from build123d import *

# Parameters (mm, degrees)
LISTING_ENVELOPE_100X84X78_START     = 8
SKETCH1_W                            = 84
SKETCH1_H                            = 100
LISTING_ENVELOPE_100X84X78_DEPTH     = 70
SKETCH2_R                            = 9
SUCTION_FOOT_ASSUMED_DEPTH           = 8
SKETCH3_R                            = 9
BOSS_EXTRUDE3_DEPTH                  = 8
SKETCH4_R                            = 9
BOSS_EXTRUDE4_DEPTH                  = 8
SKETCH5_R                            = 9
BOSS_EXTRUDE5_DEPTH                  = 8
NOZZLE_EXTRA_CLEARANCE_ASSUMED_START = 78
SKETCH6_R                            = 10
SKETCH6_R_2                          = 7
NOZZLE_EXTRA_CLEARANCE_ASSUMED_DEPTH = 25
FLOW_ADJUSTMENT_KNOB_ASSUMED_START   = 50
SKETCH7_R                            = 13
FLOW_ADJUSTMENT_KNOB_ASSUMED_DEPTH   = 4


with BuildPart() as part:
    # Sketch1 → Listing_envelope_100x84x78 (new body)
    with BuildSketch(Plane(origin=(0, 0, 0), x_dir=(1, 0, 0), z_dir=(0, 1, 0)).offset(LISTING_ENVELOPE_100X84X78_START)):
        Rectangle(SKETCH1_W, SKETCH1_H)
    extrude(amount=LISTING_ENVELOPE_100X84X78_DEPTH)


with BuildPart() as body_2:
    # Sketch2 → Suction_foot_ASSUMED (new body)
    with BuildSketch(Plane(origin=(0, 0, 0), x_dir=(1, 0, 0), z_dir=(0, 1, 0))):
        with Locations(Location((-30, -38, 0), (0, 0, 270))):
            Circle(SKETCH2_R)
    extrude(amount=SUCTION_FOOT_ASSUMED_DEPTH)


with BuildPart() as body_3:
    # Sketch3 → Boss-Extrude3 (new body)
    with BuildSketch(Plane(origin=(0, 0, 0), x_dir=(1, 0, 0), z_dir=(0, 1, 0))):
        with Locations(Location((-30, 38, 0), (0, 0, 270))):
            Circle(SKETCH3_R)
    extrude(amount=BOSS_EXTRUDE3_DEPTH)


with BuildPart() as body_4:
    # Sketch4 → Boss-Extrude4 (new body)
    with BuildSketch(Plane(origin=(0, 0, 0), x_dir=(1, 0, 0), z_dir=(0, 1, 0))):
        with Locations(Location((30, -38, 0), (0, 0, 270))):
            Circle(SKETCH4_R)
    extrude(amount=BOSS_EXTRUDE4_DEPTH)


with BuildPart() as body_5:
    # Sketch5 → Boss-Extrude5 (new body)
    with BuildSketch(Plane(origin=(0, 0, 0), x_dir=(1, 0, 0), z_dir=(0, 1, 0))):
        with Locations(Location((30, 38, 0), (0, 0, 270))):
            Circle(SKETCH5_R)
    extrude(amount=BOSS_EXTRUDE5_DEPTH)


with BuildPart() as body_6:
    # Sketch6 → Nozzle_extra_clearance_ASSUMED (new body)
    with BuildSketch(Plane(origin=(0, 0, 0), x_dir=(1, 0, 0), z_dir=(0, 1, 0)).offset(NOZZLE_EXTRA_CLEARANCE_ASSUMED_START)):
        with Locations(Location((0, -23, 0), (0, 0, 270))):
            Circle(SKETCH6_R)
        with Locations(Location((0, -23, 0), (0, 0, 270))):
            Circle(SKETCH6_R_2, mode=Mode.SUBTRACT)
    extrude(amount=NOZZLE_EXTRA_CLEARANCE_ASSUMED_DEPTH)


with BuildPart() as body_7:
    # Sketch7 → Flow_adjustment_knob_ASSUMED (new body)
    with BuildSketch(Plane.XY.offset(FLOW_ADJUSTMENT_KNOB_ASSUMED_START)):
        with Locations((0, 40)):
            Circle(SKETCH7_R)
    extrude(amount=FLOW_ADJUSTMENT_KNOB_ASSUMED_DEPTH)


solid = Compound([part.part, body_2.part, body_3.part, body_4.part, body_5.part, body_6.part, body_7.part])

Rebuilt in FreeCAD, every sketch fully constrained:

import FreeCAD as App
import Part
import Sketcher

doc = App.newDocument("Part")
body = doc.addObject("PartDesign::Body", "Body")

sketch1 = doc.addObject("Sketcher::SketchObject", "Sketch")
body.addObject(sketch1)
sketch1.AttachmentSupport = (doc.XZ_Plane, [""])
sketch1.MapMode = "FlatFace"
sketch1.AttachmentOffset = App.Placement(App.Vector(0, 0, -8), App.Rotation())
sketch1.addGeometry([
    Part.LineSegment(App.Vector(-42, -50, 0), App.Vector(-42, 50, 0)),
    Part.LineSegment(App.Vector(-42, 50, 0), App.Vector(42, 50, 0)),
    Part.LineSegment(App.Vector(42, 50, 0), App.Vector(42, -50, 0)),
    Part.LineSegment(App.Vector(42, -50, 0), App.Vector(-42, -50, 0)),
], False)
sketch1.addConstraint([
    Sketcher.Constraint("Coincident", 0, 2, 1, 1),
    Sketcher.Constraint("Coincident", 1, 2, 2, 1),
    Sketcher.Constraint("Coincident", 2, 2, 3, 1),
    Sketcher.Constraint("Coincident", 3, 2, 0, 1),
    Sketcher.Constraint("Vertical", 0),
    Sketcher.Constraint("Horizontal", 1),
    Sketcher.Constraint("Vertical", 2),
    Sketcher.Constraint("Horizontal", 3),
    Sketcher.Constraint("Symmetric", 0, 2, 2, 2, -1, 1),
    Sketcher.Constraint("DistanceX", 1, 1, 1, 2, 84.0),
    Sketcher.Constraint("DistanceY", 0, 1, 0, 2, 100.0),
])
pad1 = doc.addObject("PartDesign::Pad", "Pad")
body.addObject(pad1)
pad1.Profile = sketch1
pad1.Length = 70
pad1.Reversed = True
body2 = doc.addObject("PartDesign::Body", "Body001")

sketch2 = doc.addObject("Sketcher::SketchObject", "Sketch001")
body2.addObject(sketch2)
sketch2.AttachmentSupport = (doc.getObject("XZ_Plane001"), [""])
sketch2.MapMode = "FlatFace"
sketch2.addGeometry(Part.Circle(App.Vector(-30, 38, 0), App.Vector(0, 0, 1), 9), False)
sketch2.addConstraint([
    Sketcher.Constraint("Diameter", 0, 18.0),
    Sketcher.Constraint("DistanceX", 0, 3, -1, 1, 30.0),
    Sketcher.Constraint("DistanceY", -1, 1, 0, 3, 38.0),
])
pad2 = doc.addObject("PartDesign::Pad", "Pad001")
body2.addObject(pad2)
pad2.Profile = sketch2
pad2.Length = 8
pad2.Reversed = True
body3 = doc.addObject("PartDesign::Body", "Body002")

sketch3 = doc.addObject("Sketcher::SketchObject", "Sketch002")
body3.addObject(sketch3)
sketch3.AttachmentSupport = (doc.getObject("XZ_Plane002"), [""])
sketch3.MapMode = "FlatFace"
sketch3.addGeometry(Part.Circle(App.Vector(-30, -38, 0), App.Vector(0, 0, 1), 9), False)
sketch3.addConstraint([
    Sketcher.Constraint("Diameter", 0, 18.0),
    Sketcher.Constraint("DistanceX", 0, 3, -1, 1, 30.0),
    Sketcher.Constraint("DistanceY", 0, 3, -1, 1, 38.0),
])
pad3 = doc.addObject("PartDesign::Pad", "Pad002")
body3.addObject(pad3)
pad3.Profile = sketch3
pad3.Length = 8
pad3.Reversed = True
body4 = doc.addObject("PartDesign::Body", "Body003")

sketch4 = doc.addObject("Sketcher::SketchObject", "Sketch003")
body4.addObject(sketch4)
sketch4.AttachmentSupport = (doc.getObject("XZ_Plane003"), [""])
sketch4.MapMode = "FlatFace"
sketch4.addGeometry(Part.Circle(App.Vector(30, 38, 0), App.Vector(0, 0, 1), 9), False)
sketch4.addConstraint([
    Sketcher.Constraint("Diameter", 0, 18.0),
    Sketcher.Constraint("DistanceX", -1, 1, 0, 3, 30.0),
    Sketcher.Constraint("DistanceY", -1, 1, 0, 3, 38.0),
])
pad4 = doc.addObject("PartDesign::Pad", "Pad003")
body4.addObject(pad4)
pad4.Profile = sketch4
pad4.Length = 8
pad4.Reversed = True
body5 = doc.addObject("PartDesign::Body", "Body004")

sketch5 = doc.addObject("Sketcher::SketchObject", "Sketch004")
body5.addObject(sketch5)
sketch5.AttachmentSupport = (doc.getObject("XZ_Plane004"), [""])
sketch5.MapMode = "FlatFace"
sketch5.addGeometry(Part.Circle(App.Vector(30, -38, 0), App.Vector(0, 0, 1), 9), False)
sketch5.addConstraint([
    Sketcher.Constraint("Diameter", 0, 18.0),
    Sketcher.Constraint("DistanceX", -1, 1, 0, 3, 30.0),
    Sketcher.Constraint("DistanceY", 0, 3, -1, 1, 38.0),
])
pad5 = doc.addObject("PartDesign::Pad", "Pad004")
body5.addObject(pad5)
pad5.Profile = sketch5
pad5.Length = 8
pad5.Reversed = True
body6 = doc.addObject("PartDesign::Body", "Body005")

sketch6 = doc.addObject("Sketcher::SketchObject", "Sketch005")
body6.addObject(sketch6)
sketch6.AttachmentSupport = (doc.getObject("XZ_Plane005"), [""])
sketch6.MapMode = "FlatFace"
sketch6.AttachmentOffset = App.Placement(App.Vector(0, 0, -78), App.Rotation())
sketch6.addGeometry([
    Part.Circle(App.Vector(0, 23, 0), App.Vector(0, 0, 1), 10),
    Part.Circle(App.Vector(0, 23, 0), App.Vector(0, 0, 1), 7),
], False)
sketch6.addConstraint([
    Sketcher.Constraint("Coincident", 1, 3, 0, 3),
    Sketcher.Constraint("PointOnObject", 0, 3, -2),
    Sketcher.Constraint("Diameter", 0, 20.0),
    Sketcher.Constraint("Diameter", 1, 14.0),
    Sketcher.Constraint("DistanceY", -1, 1, 0, 3, 23.0),
])
pad6 = doc.addObject("PartDesign::Pad", "Pad005")
body6.addObject(pad6)
pad6.Profile = sketch6
pad6.Length = 25
pad6.Reversed = True
body7 = doc.addObject("PartDesign::Body", "Body006")

sketch7 = doc.addObject("Sketcher::SketchObject", "Sketch006")
body7.addObject(sketch7)
sketch7.AttachmentSupport = (doc.getObject("XY_Plane006"), [""])
sketch7.MapMode = "FlatFace"
sketch7.AttachmentOffset = App.Placement(App.Vector(0, 0, 50), App.Rotation())
sketch7.addGeometry(Part.Circle(App.Vector(0, 40, 0), App.Vector(0, 0, 1), 13), False)
sketch7.addConstraint([
    Sketcher.Constraint("PointOnObject", 0, 3, -2),
    Sketcher.Constraint("Diameter", 0, 26.0),
    Sketcher.Constraint("DistanceY", -1, 1, 0, 3, 40.0),
])
pad7 = doc.addObject("PartDesign::Pad", "Pad006")
body7.addObject(pad7)
pad7.Profile = sketch7
pad7.Length = 4

doc.recompute()
